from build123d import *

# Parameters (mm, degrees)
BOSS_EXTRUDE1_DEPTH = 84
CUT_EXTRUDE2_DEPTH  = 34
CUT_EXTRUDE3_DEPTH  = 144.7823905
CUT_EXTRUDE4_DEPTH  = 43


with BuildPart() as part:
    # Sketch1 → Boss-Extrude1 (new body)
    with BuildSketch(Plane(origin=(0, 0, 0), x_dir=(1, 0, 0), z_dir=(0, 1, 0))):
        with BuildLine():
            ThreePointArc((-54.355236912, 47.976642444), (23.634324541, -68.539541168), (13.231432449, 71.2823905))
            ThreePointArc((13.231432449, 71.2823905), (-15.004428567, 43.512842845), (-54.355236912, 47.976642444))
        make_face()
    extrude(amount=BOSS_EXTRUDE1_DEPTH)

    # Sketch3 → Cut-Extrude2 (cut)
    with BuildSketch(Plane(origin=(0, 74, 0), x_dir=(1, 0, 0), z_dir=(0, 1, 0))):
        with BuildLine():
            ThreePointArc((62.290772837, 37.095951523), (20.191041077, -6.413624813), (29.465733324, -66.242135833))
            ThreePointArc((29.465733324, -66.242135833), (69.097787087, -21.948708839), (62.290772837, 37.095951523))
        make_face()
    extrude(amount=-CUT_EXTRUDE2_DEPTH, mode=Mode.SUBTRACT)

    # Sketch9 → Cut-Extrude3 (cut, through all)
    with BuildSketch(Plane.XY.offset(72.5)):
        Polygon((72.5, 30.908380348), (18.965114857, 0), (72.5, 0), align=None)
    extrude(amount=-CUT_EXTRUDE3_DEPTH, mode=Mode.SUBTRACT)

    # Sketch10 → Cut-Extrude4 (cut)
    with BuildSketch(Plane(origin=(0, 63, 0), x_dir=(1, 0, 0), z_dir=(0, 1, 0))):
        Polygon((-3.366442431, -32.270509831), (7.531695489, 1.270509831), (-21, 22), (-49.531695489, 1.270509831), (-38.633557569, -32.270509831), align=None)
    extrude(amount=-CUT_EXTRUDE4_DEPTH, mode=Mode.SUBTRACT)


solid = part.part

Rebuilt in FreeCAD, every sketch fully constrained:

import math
import FreeCAD as App
import Part
import Sketcher
Q = App.Units.Quantity


def add_polygon(sketch, points):
    """Adds a closed chain of lines whose ends are joined by coincident constraints."""
    first, n = sketch.GeometryCount, len(points)
    for a, b in zip(points, points[1:] + points[:1]):
        sketch.addGeometry(Part.LineSegment(App.Vector(*a, 0), App.Vector(*b, 0)), False)
    for i in range(n):
        sketch.addConstraint(Sketcher.Constraint("Coincident", first + i, 2, first + (i + 1) % n, 1))

doc = App.newDocument("Part")
body = doc.addObject("PartDesign::Body", "Body")

# Sketch on XZ plane
sketch1 = body.newObject("Sketcher::SketchObject", "Sketch")
sketch1.AttachmentSupport = (doc.getObject("XZ_Plane"), [""])
sketch1.MapMode = "FlatFace"
sketch1.addGeometry(Part.ArcOfCircle(Part.Circle(App.Vector(0, 0, 0), App.Vector(0, 0, 1), 72), math.radians(-79), math.radians(221)), False)
sketch1.addGeometry(Part.ArcOfCircle(Part.Circle(App.Vector(-30, -87, 0), App.Vector(0, 0, 1), 46), math.radians(20), math.radians(122)), False)
sketch1.addConstraint(Sketcher.Constraint("Coincident", 0, 1, 1, 1))
sketch1.addConstraint(Sketcher.Constraint("Coincident", 1, 2, 0, 2))
sketch1.addConstraint(Sketcher.Constraint("Coincident", 0, 3, -1, 1))
sketch1.addConstraint(Sketcher.Constraint("Radius", 1, Q("46 mm")))
sketch1.addConstraint(Sketcher.Constraint("Radius", 0, Q("72.5 mm")))
sketch1.addConstraint(Sketcher.Constraint("DistanceX", 1, 3, -1, 1, Q("30 mm")))
sketch1.addConstraint(Sketcher.Constraint("DistanceY", 1, 3, -1, 1, Q("87 mm")))
pad1 = body.newObject("PartDesign::Pad", "Pad")
pad1.Profile = sketch1
pad1.Length = 84
pad1.Reversed = True

# Sketch on XZ plane
sketch2 = body.newObject("Sketcher::SketchObject", "Sketch001")
sketch2.AttachmentSupport = (doc.getObject("XZ_Plane"), [""])
sketch2.MapMode = "FlatFace"
sketch2.AttachmentOffset = App.Placement(App.Vector(0, 0, -74), App.Rotation())
sketch2.addGeometry(Part.ArcOfCircle(Part.Circle(App.Vector(85, 27, 0), App.Vector(0, 0, 1), 68), math.radians(145), math.radians(250)), False)
sketch2.addGeometry(Part.ArcOfCircle(Part.Circle(App.Vector(0, 0, 0), App.Vector(0, 0, 1), 72), math.radians(-31), math.radians(66)), False)
sketch2.addConstraint(Sketcher.Constraint("Coincident", 0, 1, 1, 2))
sketch2.addConstraint(Sketcher.Constraint("Coincident", 1, 1, 0, 2))
sketch2.addConstraint(Sketcher.Constraint("Coincident", 1, 3, -1, 1))
sketch2.addConstraint(Sketcher.Constraint("Radius", 0, Q("68 mm")))
sketch2.addConstraint(Sketcher.Constraint("Radius", 1, Q("72.5 mm")))
sketch2.addConstraint(Sketcher.Constraint("DistanceX", -1, 1, 0, 3, Q("85 mm")))
sketch2.addConstraint(Sketcher.Constraint("DistanceY", -1, 1, 0, 3, Q("27 mm")))
pocket1 = body.newObject("PartDesign::Pocket", "Pocket")
pocket1.Profile = sketch2
pocket1.Length = 34
pocket1.Reversed = True

# Sketch on XY plane
sketch3 = body.newObject("Sketcher::SketchObject", "Sketch002")
sketch3.AttachmentSupport = (doc.getObject("XY_Plane"), [""])
sketch3.MapMode = "FlatFace"
sketch3.AttachmentOffset = App.Placement(App.Vector(0, 0, 72.5), App.Rotation())
add_polygon(sketch3, [(72, 31), (19, 0), (72, 0)])  # lines 0-2
sketch3.addConstraint(Sketcher.Constraint("Horizontal", 1))
sketch3.addConstraint(Sketcher.Constraint("Vertical", 2))
sketch3.addConstraint(Sketcher.Constraint("PointOnObject", 0, 2, -1))
sketch3.addConstraint(Sketcher.Constraint("Angle", 0, Q("-150 deg")))
sketch3.addConstraint(Sketcher.Constraint("DistanceX", -1, 1, 1, 2, Q("72.5 mm")))
sketch3.addConstraint(Sketcher.Constraint("DistanceY", 2, 1, 2, 2, Q("30.90838 mm")))
pocket2 = body.newObject("PartDesign::Pocket", "Pocket001")
pocket2.Profile = sketch3
pocket2.Type = "ThroughAll"

# Sketch on XZ plane
sketch4 = body.newObject("Sketcher::SketchObject", "Sketch003")
sketch4.AttachmentSupport = (doc.getObject("XZ_Plane"), [""])
sketch4.MapMode = "FlatFace"
sketch4.AttachmentOffset = App.Placement(App.Vector(0, 0, -63), App.Rotation())
add_polygon(sketch4, [(-3, 32), (8, -1), (-21, -22), (-50, -1), (-39, 32)])  # lines 0-4
sketch4.addConstraint(Sketcher.Constraint("Horizontal", 4))
sketch4.addConstraint(Sketcher.Constraint("Horizontal", 0, 2, 2, 2))
sketch4.addConstraint(Sketcher.Constraint("Equal", 0, 1))
sketch4.addConstraint(Sketcher.Constraint("Equal", 1, 2))
sketch4.addConstraint(Sketcher.Constraint("Equal", 2, 3))
sketch4.addConstraint(Sketcher.Constraint("Angle", 0, Q("-72 deg")))
sketch4.addConstraint(Sketcher.Constraint("Angle", 1, Q("-144 deg")))
sketch4.addConstraint(Sketcher.Constraint("DistanceX", 1, 2, -1, 1, Q("21 mm")))
sketch4.addConstraint(Sketcher.Constraint("DistanceY", 1, 2, -1, 1, Q("22 mm")))
sketch4.addConstraint(Sketcher.Constraint("DistanceX", 4, 1, 4, 2, Q("35.267115 mm")))
pocket3 = body.newObject("PartDesign::Pocket", "Pocket002")
pocket3.Profile = sketch4
pocket3.Length = 43
pocket3.Reversed = True

doc.recompute()
